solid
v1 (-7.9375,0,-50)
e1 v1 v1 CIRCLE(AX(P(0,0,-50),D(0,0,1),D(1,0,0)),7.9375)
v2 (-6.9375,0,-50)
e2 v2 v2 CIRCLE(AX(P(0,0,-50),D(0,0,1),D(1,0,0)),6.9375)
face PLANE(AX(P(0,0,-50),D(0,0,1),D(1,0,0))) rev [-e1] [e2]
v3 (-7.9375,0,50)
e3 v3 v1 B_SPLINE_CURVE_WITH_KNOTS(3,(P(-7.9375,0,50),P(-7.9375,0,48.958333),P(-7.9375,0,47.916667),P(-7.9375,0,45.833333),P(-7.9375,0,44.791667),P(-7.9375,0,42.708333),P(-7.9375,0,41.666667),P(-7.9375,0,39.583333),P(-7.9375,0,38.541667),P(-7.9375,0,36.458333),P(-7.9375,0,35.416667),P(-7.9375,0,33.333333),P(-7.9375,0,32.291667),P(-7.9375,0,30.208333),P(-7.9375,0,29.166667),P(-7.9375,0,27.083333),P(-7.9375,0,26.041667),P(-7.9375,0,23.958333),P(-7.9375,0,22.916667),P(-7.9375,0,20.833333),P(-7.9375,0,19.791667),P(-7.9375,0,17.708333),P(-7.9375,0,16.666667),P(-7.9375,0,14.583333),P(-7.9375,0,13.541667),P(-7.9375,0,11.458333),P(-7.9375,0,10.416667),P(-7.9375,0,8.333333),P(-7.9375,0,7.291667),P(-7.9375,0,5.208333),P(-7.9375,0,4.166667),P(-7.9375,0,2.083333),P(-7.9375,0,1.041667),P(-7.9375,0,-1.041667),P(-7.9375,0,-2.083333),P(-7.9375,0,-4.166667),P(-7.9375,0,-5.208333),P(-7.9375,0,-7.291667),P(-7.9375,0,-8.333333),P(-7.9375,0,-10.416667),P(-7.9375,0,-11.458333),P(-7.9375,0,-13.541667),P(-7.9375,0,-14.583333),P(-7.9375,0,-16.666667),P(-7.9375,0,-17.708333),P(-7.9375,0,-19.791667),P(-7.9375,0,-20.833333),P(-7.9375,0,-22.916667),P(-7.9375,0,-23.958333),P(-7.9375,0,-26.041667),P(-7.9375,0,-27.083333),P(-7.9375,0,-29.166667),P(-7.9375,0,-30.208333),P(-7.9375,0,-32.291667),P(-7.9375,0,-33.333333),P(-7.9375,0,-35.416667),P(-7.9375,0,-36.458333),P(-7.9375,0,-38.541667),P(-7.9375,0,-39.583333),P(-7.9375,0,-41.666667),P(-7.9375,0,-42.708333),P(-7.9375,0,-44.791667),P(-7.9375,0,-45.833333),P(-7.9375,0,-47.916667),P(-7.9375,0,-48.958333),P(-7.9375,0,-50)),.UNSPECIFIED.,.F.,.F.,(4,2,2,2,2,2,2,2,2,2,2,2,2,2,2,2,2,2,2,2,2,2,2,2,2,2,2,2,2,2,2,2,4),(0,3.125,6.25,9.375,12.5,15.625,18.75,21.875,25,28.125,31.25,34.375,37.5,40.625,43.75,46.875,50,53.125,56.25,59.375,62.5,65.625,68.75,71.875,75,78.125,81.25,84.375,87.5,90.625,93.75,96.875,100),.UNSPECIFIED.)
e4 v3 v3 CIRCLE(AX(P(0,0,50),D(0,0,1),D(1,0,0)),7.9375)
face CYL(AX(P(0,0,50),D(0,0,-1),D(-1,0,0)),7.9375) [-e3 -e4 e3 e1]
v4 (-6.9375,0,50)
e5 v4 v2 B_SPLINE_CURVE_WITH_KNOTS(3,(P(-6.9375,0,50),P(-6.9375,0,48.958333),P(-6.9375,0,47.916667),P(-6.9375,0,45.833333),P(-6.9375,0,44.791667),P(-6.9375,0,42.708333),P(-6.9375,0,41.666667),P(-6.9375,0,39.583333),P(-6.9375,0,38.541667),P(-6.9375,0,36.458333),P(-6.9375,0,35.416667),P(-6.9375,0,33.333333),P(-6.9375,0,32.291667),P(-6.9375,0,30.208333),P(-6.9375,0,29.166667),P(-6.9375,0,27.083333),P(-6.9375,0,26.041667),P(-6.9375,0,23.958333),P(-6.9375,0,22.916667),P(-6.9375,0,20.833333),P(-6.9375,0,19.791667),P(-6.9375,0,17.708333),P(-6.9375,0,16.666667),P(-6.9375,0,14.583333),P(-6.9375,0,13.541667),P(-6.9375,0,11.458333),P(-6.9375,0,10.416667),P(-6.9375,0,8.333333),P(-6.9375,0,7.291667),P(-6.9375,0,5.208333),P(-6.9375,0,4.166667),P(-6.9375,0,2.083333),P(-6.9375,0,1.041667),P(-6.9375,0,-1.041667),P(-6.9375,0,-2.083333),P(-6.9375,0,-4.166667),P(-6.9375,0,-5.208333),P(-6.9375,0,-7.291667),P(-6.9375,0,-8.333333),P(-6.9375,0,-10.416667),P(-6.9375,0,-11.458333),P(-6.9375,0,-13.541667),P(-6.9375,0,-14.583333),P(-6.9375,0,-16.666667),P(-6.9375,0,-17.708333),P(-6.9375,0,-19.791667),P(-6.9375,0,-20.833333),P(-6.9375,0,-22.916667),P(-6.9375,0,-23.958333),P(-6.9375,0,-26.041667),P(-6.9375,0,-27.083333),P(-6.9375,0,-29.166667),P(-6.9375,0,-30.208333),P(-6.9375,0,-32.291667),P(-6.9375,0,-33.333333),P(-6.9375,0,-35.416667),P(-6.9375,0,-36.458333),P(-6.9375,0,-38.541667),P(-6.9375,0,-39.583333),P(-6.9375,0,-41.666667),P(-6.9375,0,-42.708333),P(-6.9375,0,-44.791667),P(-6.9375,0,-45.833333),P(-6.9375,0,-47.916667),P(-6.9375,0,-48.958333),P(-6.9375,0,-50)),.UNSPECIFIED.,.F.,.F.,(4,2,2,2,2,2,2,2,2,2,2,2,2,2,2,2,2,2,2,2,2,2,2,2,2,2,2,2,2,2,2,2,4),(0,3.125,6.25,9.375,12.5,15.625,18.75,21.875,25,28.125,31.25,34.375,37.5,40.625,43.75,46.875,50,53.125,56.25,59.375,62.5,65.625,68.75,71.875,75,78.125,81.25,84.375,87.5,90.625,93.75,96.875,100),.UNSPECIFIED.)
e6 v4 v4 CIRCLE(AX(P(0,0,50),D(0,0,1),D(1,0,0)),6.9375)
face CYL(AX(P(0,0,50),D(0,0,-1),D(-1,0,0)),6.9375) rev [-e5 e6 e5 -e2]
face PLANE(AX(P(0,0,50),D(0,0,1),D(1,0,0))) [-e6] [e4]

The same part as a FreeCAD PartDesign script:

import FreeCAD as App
import Part
import Sketcher
from FreeCAD import Vector
Q = App.Units.Quantity

doc = App.newDocument("Part")
params = doc.addObject("Spreadsheet::Sheet", "Params")
for row, (alias, value) in enumerate([
    ("pad1_length", "100 mm"),
], start=1):
    params.set(f"A{row}", alias)
    params.set(f"B{row}", "=" + value)
    params.setAlias(f"B{row}", alias)

body = doc.addObject("PartDesign::Body", "Body")

# Sketch on XY plane
sketch1 = body.newObject("Sketcher::SketchObject", "Sketch")
sketch1.AttachmentSupport = (doc.getObject("XY_Plane"), [""])
sketch1.MapMode = "FlatFace"
sketch1.addGeometry([
    Part.Circle(Vector(0, 0, 0), Vector(0, 0, 1), 8),
    Part.Circle(Vector(0, 0, 0), Vector(0, 0, 1), 7),
], False)
sketch1.addConstraint([
    Sketcher.Constraint("Coincident", 0, 3, -1, 1),
    Sketcher.Constraint("Coincident", 1, 3, -1, 1),
    Sketcher.Constraint("Diameter", 0, Q("15.875 mm")),
    Sketcher.Constraint("Diameter", 1, Q("13.875 mm")),
])
pad1 = body.newObject("PartDesign::Pad", "Pad")
pad1.Profile = sketch1
pad1.setExpression("Length", "Params.pad1_length")
pad1.Midplane = True

doc.recompute()
